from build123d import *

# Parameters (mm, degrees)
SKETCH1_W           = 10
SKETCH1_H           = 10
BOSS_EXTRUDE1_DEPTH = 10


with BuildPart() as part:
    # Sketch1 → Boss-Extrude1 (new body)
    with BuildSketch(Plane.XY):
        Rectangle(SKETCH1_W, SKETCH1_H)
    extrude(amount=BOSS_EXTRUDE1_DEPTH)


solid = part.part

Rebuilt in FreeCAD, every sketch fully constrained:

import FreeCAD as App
import Part
import Sketcher
Q = App.Units.Quantity

doc = App.newDocument("Part")
body = doc.addObject("PartDesign::Body", "Body")

sketch1 = body.newObject("Sketcher::SketchObject", "Sketch")
sketch1.AttachmentSupport = (doc.getObject("XY_Plane"), [""])
sketch1.MapMode = "FlatFace"
sketch1.addGeometry([
    Part.LineSegment(App.Vector(-5, 5, 0), App.Vector(-5, -5, 0)),
    Part.LineSegment(App.Vector(-5, -5, 0), App.Vector(5, -5, 0)),
    Part.LineSegment(App.Vector(5, -5, 0), App.Vector(5, 5, 0)),
    Part.LineSegment(App.Vector(5, 5, 0), App.Vector(-5, 5, 0)),
], False)
sketch1.addConstraint([
    Sketcher.Constraint("Coincident", 0, 2, 1, 1),
    Sketcher.Constraint("Coincident", 1, 2, 2, 1),
    Sketcher.Constraint("Coincident", 2, 2, 3, 1),
    Sketcher.Constraint("Coincident", 3, 2, 0, 1),
    Sketcher.Constraint("Vertical", 0),
    Sketcher.Constraint("Horizontal", 1),
    Sketcher.Constraint("Vertical", 2),
    Sketcher.Constraint("Horizontal", 3),
    Sketcher.Constraint("Symmetric", 0, 2, 2, 2, -1, 1),
    Sketcher.Constraint("Equal", 3, 0),
    Sketcher.Constraint("DistanceX", 1, 1, 1, 2, Q("10 mm")),
])
pad1 = body.newObject("PartDesign::Pad", "Pad")
pad1.Profile = sketch1
pad1.Length = 10

doc.recompute()
